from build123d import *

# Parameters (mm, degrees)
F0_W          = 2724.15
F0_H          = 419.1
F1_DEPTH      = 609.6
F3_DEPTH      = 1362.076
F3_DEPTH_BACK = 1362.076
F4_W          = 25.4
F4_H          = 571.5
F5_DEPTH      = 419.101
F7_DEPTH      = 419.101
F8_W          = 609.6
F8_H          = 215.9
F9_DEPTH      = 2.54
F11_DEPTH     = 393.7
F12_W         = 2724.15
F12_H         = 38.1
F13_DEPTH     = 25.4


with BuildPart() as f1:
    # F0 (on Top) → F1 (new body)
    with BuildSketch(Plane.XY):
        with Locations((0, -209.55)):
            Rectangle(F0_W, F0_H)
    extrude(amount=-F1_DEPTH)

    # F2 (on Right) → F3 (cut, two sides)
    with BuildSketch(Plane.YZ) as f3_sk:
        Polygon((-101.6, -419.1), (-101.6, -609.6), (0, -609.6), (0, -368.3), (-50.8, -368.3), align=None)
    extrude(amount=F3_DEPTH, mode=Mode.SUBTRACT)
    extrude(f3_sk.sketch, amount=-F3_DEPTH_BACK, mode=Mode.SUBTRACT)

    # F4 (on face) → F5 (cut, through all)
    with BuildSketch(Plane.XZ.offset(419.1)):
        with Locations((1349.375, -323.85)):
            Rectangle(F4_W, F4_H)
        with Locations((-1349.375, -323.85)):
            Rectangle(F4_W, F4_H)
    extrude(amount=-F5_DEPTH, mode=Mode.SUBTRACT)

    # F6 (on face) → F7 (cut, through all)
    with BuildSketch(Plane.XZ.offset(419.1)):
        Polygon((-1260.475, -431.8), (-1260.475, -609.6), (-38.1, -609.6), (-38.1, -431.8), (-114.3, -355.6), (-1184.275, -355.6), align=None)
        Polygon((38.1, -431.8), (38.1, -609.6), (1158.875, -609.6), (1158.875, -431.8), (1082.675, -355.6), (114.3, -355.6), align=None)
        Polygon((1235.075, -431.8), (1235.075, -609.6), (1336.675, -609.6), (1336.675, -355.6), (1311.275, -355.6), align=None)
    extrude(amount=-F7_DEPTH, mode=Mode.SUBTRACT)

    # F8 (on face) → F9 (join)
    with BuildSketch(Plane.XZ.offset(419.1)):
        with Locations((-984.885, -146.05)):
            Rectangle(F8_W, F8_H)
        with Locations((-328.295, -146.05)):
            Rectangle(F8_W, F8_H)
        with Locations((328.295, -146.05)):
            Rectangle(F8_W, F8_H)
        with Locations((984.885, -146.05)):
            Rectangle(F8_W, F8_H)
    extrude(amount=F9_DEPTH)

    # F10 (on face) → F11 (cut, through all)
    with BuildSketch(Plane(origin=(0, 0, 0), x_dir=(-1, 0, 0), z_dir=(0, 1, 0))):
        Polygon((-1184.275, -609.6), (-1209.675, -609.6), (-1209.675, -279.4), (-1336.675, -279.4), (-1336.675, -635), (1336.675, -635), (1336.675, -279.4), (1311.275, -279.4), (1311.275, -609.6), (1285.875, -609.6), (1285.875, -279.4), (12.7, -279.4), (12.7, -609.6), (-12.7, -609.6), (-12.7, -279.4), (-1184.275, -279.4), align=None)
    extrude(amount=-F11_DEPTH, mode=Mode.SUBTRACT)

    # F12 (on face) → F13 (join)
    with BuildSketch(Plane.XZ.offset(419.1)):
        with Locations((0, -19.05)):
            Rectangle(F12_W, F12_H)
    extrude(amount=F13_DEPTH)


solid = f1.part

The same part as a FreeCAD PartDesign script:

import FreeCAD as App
import Part
import Sketcher
Q = App.Units.Quantity

doc = App.newDocument("Part")
body = doc.addObject("PartDesign::Body", "Body")

# Sketch on XY plane
sketch1 = body.newObject("Sketcher::SketchObject", "Sketch")
sketch1.AttachmentSupport = (doc.getObject("XY_Plane"), [""])
sketch1.MapMode = "FlatFace"
sketch1.addGeometry(Part.LineSegment(App.Vector(-1362, 0, 0), App.Vector(-1362, -419, 0)), False)
sketch1.addGeometry(Part.LineSegment(App.Vector(-1362, -419, 0), App.Vector(1362, -419, 0)), False)
sketch1.addGeometry(Part.LineSegment(App.Vector(1362, -419, 0), App.Vector(1362, 0, 0)), False)
sketch1.addGeometry(Part.LineSegment(App.Vector(1362, 0, 0), App.Vector(-1362, 0, 0)), False)
sketch1.addConstraint(Sketcher.Constraint("Coincident", 0, 2, 1, 1))
sketch1.addConstraint(Sketcher.Constraint("Coincident", 1, 2, 2, 1))
sketch1.addConstraint(Sketcher.Constraint("Coincident", 2, 2, 3, 1))
sketch1.addConstraint(Sketcher.Constraint("Coincident", 3, 2, 0, 1))
sketch1.addConstraint(Sketcher.Constraint("Vertical", 0))
sketch1.addConstraint(Sketcher.Constraint("Horizontal", 1))
sketch1.addConstraint(Sketcher.Constraint("Vertical", 2))
sketch1.addConstraint(Sketcher.Constraint("Horizontal", 3))
sketch1.addConstraint(Sketcher.Constraint("Symmetric", 2, 2, 3, 2, -1, 1))
sketch1.addConstraint(Sketcher.Constraint("DistanceY", 0, 2, 0, 1, Q("16.5 in")))
sketch1.addConstraint(Sketcher.Constraint("DistanceX", 1, 1, 1, 2, Q("107.25 in")))
pad1 = body.newObject("PartDesign::Pad", "Pad")
pad1.Profile = sketch1
pad1.Length = Q("24 in")
pad1.Reversed = True

# Sketch on YZ plane
sketch2 = body.newObject("Sketcher::SketchObject", "Sketch001")
sketch2.AttachmentSupport = (doc.getObject("YZ_Plane"), [""])
sketch2.MapMode = "FlatFace"
sketch2.addGeometry(Part.LineSegment(App.Vector(-102, -419, 0), App.Vector(-102, -610, 0)), False)
sketch2.addGeometry(Part.LineSegment(App.Vector(-102, -610, 0), App.Vector(0, -610, 0)), False)
sketch2.addGeometry(Part.LineSegment(App.Vector(0, -610, 0), App.Vector(0, -368, 0)), False)
sketch2.addGeometry(Part.LineSegment(App.Vector(0, -368, 0), App.Vector(-51, -368, 0)), False)
sketch2.addGeometry(Part.LineSegment(App.Vector(-51, -368, 0), App.Vector(-102, -419, 0)), False)
sketch2.addConstraint(Sketcher.Constraint("Coincident", 0, 2, 1, 1))
sketch2.addConstraint(Sketcher.Constraint("Coincident", 1, 2, 2, 1))
sketch2.addConstraint(Sketcher.Constraint("Coincident", 2, 2, 3, 1))
sketch2.addConstraint(Sketcher.Constraint("Coincident", 3, 2, 4, 1))
sketch2.addConstraint(Sketcher.Constraint("Coincident", 4, 2, 0, 1))
sketch2.addConstraint(Sketcher.Constraint("Vertical", 0))
sketch2.addConstraint(Sketcher.Constraint("Horizontal", 1))
sketch2.addConstraint(Sketcher.Constraint("Vertical", 2))
sketch2.addConstraint(Sketcher.Constraint("Horizontal", 3))
sketch2.addConstraint(Sketcher.Constraint("PointOnObject", 1, 2, -2))
sketch2.addConstraint(Sketcher.Constraint("DistanceX", 1, 1, 1, 2, Q("4 in")))
sketch2.addConstraint(Sketcher.Constraint("DistanceX", 3, 2, 3, 1, Q("2 in")))
sketch2.addConstraint(Sketcher.Constraint("DistanceY", 0, 2, 0, 1, Q("7.5 in")))
sketch2.addConstraint(Sketcher.Constraint("DistanceY", 2, 1, 2, 2, Q("9.5 in")))
sketch2.addConstraint(Sketcher.Constraint("DistanceY", 0, 2, -1, 1, Q("24 in")))
pocket1 = body.newObject("PartDesign::Pocket", "Pocket")
pocket1.Profile = sketch2
pocket1.Type = "ThroughAll"
pocket1.Midplane = True

# Sketch on XZ plane
sketch3 = body.newObject("Sketcher::SketchObject", "Sketch002")
sketch3.AttachmentSupport = (doc.getObject("XZ_Plane"), [""])
sketch3.MapMode = "FlatFace"
sketch3.AttachmentOffset = App.Placement(App.Vector(0, 0, 16.5 * 25.4), App.Rotation())
sketch3.addGeometry(Part.LineSegment(App.Vector(1337, -38, 0), App.Vector(1337, -610, 0)), False)
sketch3.addGeometry(Part.LineSegment(App.Vector(1337, -610, 0), App.Vector(1362, -610, 0)), False)
sketch3.addGeometry(Part.LineSegment(App.Vector(1362, -610, 0), App.Vector(1362, -38, 0)), False)
sketch3.addGeometry(Part.LineSegment(App.Vector(1362, -38, 0), App.Vector(1337, -38, 0)), False)
sketch3.addGeometry(Part.LineSegment(App.Vector(-1362, -38, 0), App.Vector(-1362, -610, 0)), False)
sketch3.addGeometry(Part.LineSegment(App.Vector(-1362, -610, 0), App.Vector(-1337, -610, 0)), False)
sketch3.addGeometry(Part.LineSegment(App.Vector(-1337, -610, 0), App.Vector(-1337, -38, 0)), False)
sketch3.addGeometry(Part.LineSegment(App.Vector(-1337, -38, 0), App.Vector(-1362, -38, 0)), False)
sketch3.addConstraint(Sketcher.Constraint("Coincident", 0, 2, 1, 1))
sketch3.addConstraint(Sketcher.Constraint("Coincident", 1, 2, 2, 1))
sketch3.addConstraint(Sketcher.Constraint("Coincident", 2, 2, 3, 1))
sketch3.addConstraint(Sketcher.Constraint("Coincident", 3, 2, 0, 1))
sketch3.addConstraint(Sketcher.Constraint("Coincident", 4, 2, 5, 1))
sketch3.addConstraint(Sketcher.Constraint("Coincident", 5, 2, 6, 1))
sketch3.addConstraint(Sketcher.Constraint("Coincident", 6, 2, 7, 1))
sketch3.addConstraint(Sketcher.Constraint("Coincident", 7, 2, 4, 1))
sketch3.addConstraint(Sketcher.Constraint("Vertical", 0))
sketch3.addConstraint(Sketcher.Constraint("Horizontal", 1))
sketch3.addConstraint(Sketcher.Constraint("Vertical", 2))
sketch3.addConstraint(Sketcher.Constraint("Horizontal", 3))
sketch3.addConstraint(Sketcher.Constraint("Vertical", 4))
sketch3.addConstraint(Sketcher.Constraint("Horizontal", 5))
sketch3.addConstraint(Sketcher.Constraint("Vertical", 6))
sketch3.addConstraint(Sketcher.Constraint("Horizontal", 7))
sketch3.addConstraint(Sketcher.Constraint("Symmetric", 1, 2, 4, 2, -2))
sketch3.addConstraint(Sketcher.Constraint("Symmetric", 3, 2, 6, 2, -2))
sketch3.addConstraint(Sketcher.Constraint("DistanceX", 1, 1, 1, 2, Q("1 in")))
sketch3.addConstraint(Sketcher.Constraint("DistanceY", 0, 2, 0, 1, Q("22.5 in")))
sketch3.addConstraint(Sketcher.Constraint("DistanceY", 0, 2, -1, 1, Q("24 in")))
sketch3.addConstraint(Sketcher.Constraint("DistanceX", 4, 2, 0, 2, Q("106.25 in")))
pocket2 = body.newObject("PartDesign::Pocket", "Pocket001")
pocket2.Profile = sketch3
pocket2.Type = "ThroughAll"

# Sketch on XZ plane
sketch4 = body.newObject("Sketcher::SketchObject", "Sketch003")
sketch4.AttachmentSupport = (doc.getObject("XZ_Plane"), [""])
sketch4.MapMode = "FlatFace"
sketch4.AttachmentOffset = App.Placement(App.Vector(0, 0, 16.5 * 25.4), App.Rotation())
sketch4.addGeometry(Part.LineSegment(App.Vector(-1260, -432, 0), App.Vector(-1260, -610, 0)), False)
sketch4.addGeometry(Part.LineSegment(App.Vector(-1260, -610, 0), App.Vector(-38, -610, 0)), False)
sketch4.addGeometry(Part.LineSegment(App.Vector(-38, -610, 0), App.Vector(-38, -432, 0)), False)
sketch4.addGeometry(Part.LineSegment(App.Vector(-38, -432, 0), App.Vector(-114, -356, 0)), False)
sketch4.addGeometry(Part.LineSegment(App.Vector(-114, -356, 0), App.Vector(-1184, -356, 0)), False)
sketch4.addGeometry(Part.LineSegment(App.Vector(-1184, -356, 0), App.Vector(-1260, -432, 0)), False)
sketch4.addGeometry(Part.LineSegment(App.Vector(38, -432, 0), App.Vector(38, -610, 0)), False)
sketch4.addGeometry(Part.LineSegment(App.Vector(38, -610, 0), App.Vector(1159, -610, 0)), False)
sketch4.addGeometry(Part.LineSegment(App.Vector(1159, -610, 0), App.Vector(1159, -432, 0)), False)
sketch4.addGeometry(Part.LineSegment(App.Vector(1159, -432, 0), App.Vector(1083, -356, 0)), False)
sketch4.addGeometry(Part.LineSegment(App.Vector(1083, -356, 0), App.Vector(114, -356, 0)), False)
sketch4.addGeometry(Part.LineSegment(App.Vector(114, -356, 0), App.Vector(38, -432, 0)), False)
sketch4.addGeometry(Part.LineSegment(App.Vector(1235, -432, 0), App.Vector(1235, -610, 0)), False)
sketch4.addGeometry(Part.LineSegment(App.Vector(1235, -610, 0), App.Vector(1337, -610, 0)), False)
sketch4.addGeometry(Part.LineSegment(App.Vector(1337, -610, 0), App.Vector(1337, -356, 0)), False)
sketch4.addGeometry(Part.LineSegment(App.Vector(1337, -356, 0), App.Vector(1311, -356, 0)), False)
sketch4.addGeometry(Part.LineSegment(App.Vector(1311, -356, 0), App.Vector(1235, -432, 0)), False)
sketch4.addConstraint(Sketcher.Constraint("Coincident", 0, 2, 1, 1))
sketch4.addConstraint(Sketcher.Constraint("Coincident", 1, 2, 2, 1))
sketch4.addConstraint(Sketcher.Constraint("Coincident", 2, 2, 3, 1))
sketch4.addConstraint(Sketcher.Constraint("Coincident", 3, 2, 4, 1))
sketch4.addConstraint(Sketcher.Constraint("Coincident", 4, 2, 5, 1))
sketch4.addConstraint(Sketcher.Constraint("Coincident", 5, 2, 0, 1))
sketch4.addConstraint(Sketcher.Constraint("Coincident", 6, 2, 7, 1))
sketch4.addConstraint(Sketcher.Constraint("Coincident", 7, 2, 8, 1))
sketch4.addConstraint(Sketcher.Constraint("Coincident", 8, 2, 9, 1))
sketch4.addConstraint(Sketcher.Constraint("Coincident", 9, 2, 10, 1))
sketch4.addConstraint(Sketcher.Constraint("Coincident", 10, 2, 11, 1))
sketch4.addConstraint(Sketcher.Constraint("Coincident", 11, 2, 6, 1))
sketch4.addConstraint(Sketcher.Constraint("Coincident", 12, 2, 13, 1))
sketch4.addConstraint(Sketcher.Constraint("Coincident", 13, 2, 14, 1))
sketch4.addConstraint(Sketcher.Constraint("Coincident", 14, 2, 15, 1))
sketch4.addConstraint(Sketcher.Constraint("Coincident", 15, 2, 16, 1))
sketch4.addConstraint(Sketcher.Constraint("Coincident", 16, 2, 12, 1))
sketch4.addConstraint(Sketcher.Constraint("Vertical", 0))
sketch4.addConstraint(Sketcher.Constraint("Horizontal", 1))
sketch4.addConstraint(Sketcher.Constraint("Vertical", 2))
sketch4.addConstraint(Sketcher.Constraint("Horizontal", 4))
sketch4.addConstraint(Sketcher.Constraint("Vertical", 6))
sketch4.addConstraint(Sketcher.Constraint("Horizontal", 7))
sketch4.addConstraint(Sketcher.Constraint("Vertical", 8))
sketch4.addConstraint(Sketcher.Constraint("Horizontal", 10))
sketch4.addConstraint(Sketcher.Constraint("Vertical", 12))
sketch4.addConstraint(Sketcher.Constraint("Horizontal", 13))
sketch4.addConstraint(Sketcher.Constraint("Vertical", 14))
sketch4.addConstraint(Sketcher.Constraint("Horizontal", 15))
sketch4.addConstraint(Sketcher.Constraint("Symmetric", 1, 2, 6, 2, -2))
sketch4.addConstraint(Sketcher.Constraint("Symmetric", 3, 2, 10, 2, -2))
sketch4.addConstraint(Sketcher.Constraint("Perpendicular", 3, 5))
sketch4.addConstraint(Sketcher.Constraint("Perpendicular", 5, 9))
sketch4.addConstraint(Sketcher.Constraint("Perpendicular", 9, 11))
sketch4.addConstraint(Sketcher.Constraint("Parallel", 11, 16))
sketch4.addConstraint(Sketcher.Constraint("Horizontal", 2, 2, 5, 2))
sketch4.addConstraint(Sketcher.Constraint("Horizontal", 5, 2, 8, 2))
sketch4.addConstraint(Sketcher.Constraint("Horizontal", 8, 2, 11, 2))
sketch4.addConstraint(Sketcher.Constraint("Horizontal", 7, 2, 12, 2))
sketch4.addConstraint(Sketcher.Constraint("Horizontal", 10, 2, 14, 2))
sketch4.addConstraint(Sketcher.Constraint("Horizontal", 11, 2, 16, 2))
sketch4.addConstraint(Sketcher.Constraint("DistanceX", 13, 1, 13, 2, Q("4 in")))
sketch4.addConstraint(Sketcher.Constraint("DistanceX", 15, 2, 15, 1, Q("1 in")))
sketch4.addConstraint(Sketcher.Constraint("DistanceY", 0, 2, 0, 1, Q("7 in")))
sketch4.addConstraint(Sketcher.Constraint("DistanceY", 0, 2, -1, 1, Q("24 in")))
sketch4.addConstraint(Sketcher.Constraint("DistanceX", 1, 2, 6, 2, Q("3 in")))
sketch4.addConstraint(Sketcher.Constraint("DistanceX", 7, 2, 12, 2, Q("3 in")))
sketch4.addConstraint(Sketcher.Constraint("DistanceX", 1, 1, 1, 2, Q("48.125 in")))
sketch4.addConstraint(Sketcher.Constraint("DistanceX", 7, 1, 7, 2, Q("44.125 in")))
pocket3 = body.newObject("PartDesign::Pocket", "Pocket002")
pocket3.Profile = sketch4
pocket3.Type = "ThroughAll"

# Sketch on XZ plane
sketch5 = body.newObject("Sketcher::SketchObject", "Sketch004")
sketch5.AttachmentSupport = (doc.getObject("XZ_Plane"), [""])
sketch5.MapMode = "FlatFace"
sketch5.AttachmentOffset = App.Placement(App.Vector(0, 0, 16.5 * 25.4), App.Rotation())
sketch5.addGeometry(Part.LineSegment(App.Vector(-1290, -38, 0), App.Vector(-1290, -254, 0)), False)
sketch5.addGeometry(Part.LineSegment(App.Vector(-1290, -254, 0), App.Vector(-680, -254, 0)), False)
sketch5.addGeometry(Part.LineSegment(App.Vector(-680, -254, 0), App.Vector(-680, -38, 0)), False)
sketch5.addGeometry(Part.LineSegment(App.Vector(-680, -38, 0), App.Vector(-1290, -38, 0)), False)
sketch5.addGeometry(Part.LineSegment(App.Vector(-633, -38, 0), App.Vector(-633, -254, 0)), False)
sketch5.addGeometry(Part.LineSegment(App.Vector(-633, -254, 0), App.Vector(-23, -254, 0)), False)
sketch5.addGeometry(Part.LineSegment(App.Vector(-23, -254, 0), App.Vector(-23, -38, 0)), False)
sketch5.addGeometry(Part.LineSegment(App.Vector(-23, -38, 0), App.Vector(-633, -38, 0)), False)
sketch5.addGeometry(Part.LineSegment(App.Vector(23, -38, 0), App.Vector(23, -254, 0)), False)
sketch5.addGeometry(Part.LineSegment(App.Vector(23, -254, 0), App.Vector(633, -254, 0)), False)
sketch5.addGeometry(Part.LineSegment(App.Vector(633, -254, 0), App.Vector(633, -38, 0)), False)
sketch5.addGeometry(Part.LineSegment(App.Vector(633, -38, 0), App.Vector(23, -38, 0)), False)
sketch5.addGeometry(Part.LineSegment(App.Vector(680, -38, 0), App.Vector(680, -254, 0)), False)
sketch5.addGeometry(Part.LineSegment(App.Vector(680, -254, 0), App.Vector(1290, -254, 0)), False)
sketch5.addGeometry(Part.LineSegment(App.Vector(1290, -254, 0), App.Vector(1290, -38, 0)), False)
sketch5.addGeometry(Part.LineSegment(App.Vector(1290, -38, 0), App.Vector(680, -38, 0)), False)
sketch5.addConstraint(Sketcher.Constraint("Coincident", 0, 2, 1, 1))
sketch5.addConstraint(Sketcher.Constraint("Coincident", 1, 2, 2, 1))
sketch5.addConstraint(Sketcher.Constraint("Coincident", 2, 2, 3, 1))
sketch5.addConstraint(Sketcher.Constraint("Coincident", 3, 2, 0, 1))
sketch5.addConstraint(Sketcher.Constraint("Coincident", 4, 2, 5, 1))
sketch5.addConstraint(Sketcher.Constraint("Coincident", 5, 2, 6, 1))
sketch5.addConstraint(Sketcher.Constraint("Coincident", 6, 2, 7, 1))
sketch5.addConstraint(Sketcher.Constraint("Coincident", 7, 2, 4, 1))
sketch5.addConstraint(Sketcher.Constraint("Coincident", 8, 2, 9, 1))
sketch5.addConstraint(Sketcher.Constraint("Coincident", 9, 2, 10, 1))
sketch5.addConstraint(Sketcher.Constraint("Coincident", 10, 2, 11, 1))
sketch5.addConstraint(Sketcher.Constraint("Coincident", 11, 2, 8, 1))
sketch5.addConstraint(Sketcher.Constraint("Coincident", 12, 2, 13, 1))
sketch5.addConstraint(Sketcher.Constraint("Coincident", 13, 2, 14, 1))
sketch5.addConstraint(Sketcher.Constraint("Coincident", 14, 2, 15, 1))
sketch5.addConstraint(Sketcher.Constraint("Coincident", 15, 2, 12, 1))
sketch5.addConstraint(Sketcher.Constraint("Vertical", 0))
sketch5.addConstraint(Sketcher.Constraint("Horizontal", 1))
sketch5.addConstraint(Sketcher.Constraint("Vertical", 2))
sketch5.addConstraint(Sketcher.Constraint("Horizontal", 3))
sketch5.addConstraint(Sketcher.Constraint("Vertical", 4))
sketch5.addConstraint(Sketcher.Constraint("Horizontal", 5))
sketch5.addConstraint(Sketcher.Constraint("Vertical", 6))
sketch5.addConstraint(Sketcher.Constraint("Horizontal", 7))
sketch5.addConstraint(Sketcher.Constraint("Vertical", 8))
sketch5.addConstraint(Sketcher.Constraint("Horizontal", 9))
sketch5.addConstraint(Sketcher.Constraint("Vertical", 10))
sketch5.addConstraint(Sketcher.Constraint("Horizontal", 11))
sketch5.addConstraint(Sketcher.Constraint("Vertical", 12))
sketch5.addConstraint(Sketcher.Constraint("Horizontal", 13))
sketch5.addConstraint(Sketcher.Constraint("Vertical", 14))
sketch5.addConstraint(Sketcher.Constraint("Horizontal", 15))
sketch5.addConstraint(Sketcher.Constraint("Symmetric", 5, 2, 8, 2, -2))
sketch5.addConstraint(Sketcher.Constraint("Symmetric", 7, 2, 10, 2, -2))
sketch5.addConstraint(Sketcher.Constraint("Symmetric", 1, 2, 12, 2, -2))
sketch5.addConstraint(Sketcher.Constraint("Symmetric", 3, 2, 14, 2, -2))
sketch5.addConstraint(Sketcher.Constraint("Horizontal", 1, 2, 4, 2))
sketch5.addConstraint(Sketcher.Constraint("Horizontal", 3, 2, 6, 2))
sketch5.addConstraint(Sketcher.Constraint("Equal", 3, 5))
sketch5.addConstraint(Sketcher.Constraint("DistanceX", 1, 1, 1, 2, Q("24 in")))
sketch5.addConstraint(Sketcher.Constraint("DistanceY", 0, 2, 0, 1, Q("8.5 in")))
sketch5.addConstraint(Sketcher.Constraint("DistanceY", 0, 2, -1, 1, Q("10 in")))
sketch5.addConstraint(Sketcher.Constraint("DistanceX", 1, 2, 8, 2, Q("27.7 in")))
sketch5.addConstraint(Sketcher.Constraint("DistanceX", 1, 2, 4, 2, Q("1.85 in")))
pad2 = body.newObject("PartDesign::Pad", "Pad001")
pad2.Profile = sketch5
pad2.Length = Q("0.1 in")

# Sketch on XZ plane
sketch6 = body.newObject("Sketcher::SketchObject", "Sketch005")
sketch6.AttachmentSupport = (doc.getObject("XZ_Plane"), [""])
sketch6.MapMode = "FlatFace"
sketch6.addGeometry(Part.LineSegment(App.Vector(1184, -610, 0), App.Vector(1210, -610, 0)), False)
sketch6.addGeometry(Part.LineSegment(App.Vector(1210, -610, 0), App.Vector(1210, -279, 0)), False)
sketch6.addGeometry(Part.LineSegment(App.Vector(1210, -279, 0), App.Vector(1337, -279, 0)), False)
sketch6.addGeometry(Part.LineSegment(App.Vector(1337, -279, 0), App.Vector(1337, -635, 0)), False)
sketch6.addGeometry(Part.LineSegment(App.Vector(1337, -635, 0), App.Vector(-1337, -635, 0)), False)
sketch6.addGeometry(Part.LineSegment(App.Vector(-1337, -635, 0), App.Vector(-1337, -279, 0)), False)
sketch6.addGeometry(Part.LineSegment(App.Vector(-1337, -279, 0), App.Vector(-1311, -279, 0)), False)
sketch6.addGeometry(Part.LineSegment(App.Vector(-1311, -279, 0), App.Vector(-1311, -610, 0)), False)
sketch6.addGeometry(Part.LineSegment(App.Vector(-1311, -610, 0), App.Vector(-1286, -610, 0)), False)
sketch6.addGeometry(Part.LineSegment(App.Vector(-1286, -610, 0), App.Vector(-1286, -279, 0)), False)
sketch6.addGeometry(Part.LineSegment(App.Vector(-1286, -279, 0), App.Vector(-13, -279, 0)), False)
sketch6.addGeometry(Part.LineSegment(App.Vector(-13, -279, 0), App.Vector(-13, -610, 0)), False)
sketch6.addGeometry(Part.LineSegment(App.Vector(-13, -610, 0), App.Vector(13, -610, 0)), False)
sketch6.addGeometry(Part.LineSegment(App.Vector(13, -610, 0), App.Vector(13, -279, 0)), False)
sketch6.addGeometry(Part.LineSegment(App.Vector(13, -279, 0), App.Vector(1184, -279, 0)), False)
sketch6.addGeometry(Part.LineSegment(App.Vector(1184, -279, 0), App.Vector(1184, -610, 0)), False)
sketch6.addConstraint(Sketcher.Constraint("Coincident", 0, 2, 1, 1))
sketch6.addConstraint(Sketcher.Constraint("Coincident", 1, 2, 2, 1))
sketch6.addConstraint(Sketcher.Constraint("Coincident", 2, 2, 3, 1))
sketch6.addConstraint(Sketcher.Constraint("Coincident", 3, 2, 4, 1))
sketch6.addConstraint(Sketcher.Constraint("Coincident", 4, 2, 5, 1))
sketch6.addConstraint(Sketcher.Constraint("Coincident", 5, 2, 6, 1))
sketch6.addConstraint(Sketcher.Constraint("Coincident", 6, 2, 7, 1))
sketch6.addConstraint(Sketcher.Constraint("Coincident", 7, 2, 8, 1))
sketch6.addConstraint(Sketcher.Constraint("Coincident", 8, 2, 9, 1))
sketch6.addConstraint(Sketcher.Constraint("Coincident", 9, 2, 10, 1))
sketch6.addConstraint(Sketcher.Constraint("Coincident", 10, 2, 11, 1))
sketch6.addConstraint(Sketcher.Constraint("Coincident", 11, 2, 12, 1))
sketch6.addConstraint(Sketcher.Constraint("Coincident", 12, 2, 13, 1))
sketch6.addConstraint(Sketcher.Constraint("Coincident", 13, 2, 14, 1))
sketch6.addConstraint(Sketcher.Constraint("Coincident", 14, 2, 15, 1))
sketch6.addConstraint(Sketcher.Constraint("Coincident", 15, 2, 0, 1))
sketch6.addConstraint(Sketcher.Constraint("Horizontal", 0))
sketch6.addConstraint(Sketcher.Constraint("Vertical", 1))
sketch6.addConstraint(Sketcher.Constraint("Horizontal", 2))
sketch6.addConstraint(Sketcher.Constraint("Vertical", 3))
sketch6.addConstraint(Sketcher.Constraint("Horizontal", 4))
sketch6.addConstraint(Sketcher.Constraint("Vertical", 5))
sketch6.addConstraint(Sketcher.Constraint("Horizontal", 6))
sketch6.addConstraint(Sketcher.Constraint("Vertical", 7))
sketch6.addConstraint(Sketcher.Constraint("Horizontal", 8))
sketch6.addConstraint(Sketcher.Constraint("Vertical", 9))
sketch6.addConstraint(Sketcher.Constraint("Horizontal", 10))
sketch6.addConstraint(Sketcher.Constraint("Vertical", 11))
sketch6.addConstraint(Sketcher.Constraint("Horizontal", 12))
sketch6.addConstraint(Sketcher.Constraint("Vertical", 13))
sketch6.addConstraint(Sketcher.Constraint("Horizontal", 14))
sketch6.addConstraint(Sketcher.Constraint("Vertical", 15))
sketch6.addConstraint(Sketcher.Constraint("Symmetric", 2, 2, 5, 2, -2))
sketch6.addConstraint(Sketcher.Constraint("Symmetric", 10, 2, 13, 2, -2))
sketch6.addConstraint(Sketcher.Constraint("Horizontal", 0, 2, 7, 2))
sketch6.addConstraint(Sketcher.Constraint("Horizontal", 6, 2, 9, 2))
sketch6.addConstraint(Sketcher.Constraint("Horizontal", 8, 2, 11, 2))
sketch6.addConstraint(Sketcher.Constraint("Equal", 0, 6))
sketch6.addConstraint(Sketcher.Constraint("Equal", 6, 8))
sketch6.addConstraint(Sketcher.Constraint("Equal", 8, 12))
sketch6.addConstraint(Sketcher.Constraint("DistanceX", 0, 1, 0, 2, Q("1 in")))
sketch6.addConstraint(Sketcher.Constraint("DistanceX", 2, 1, 2, 2, Q("5 in")))
sketch6.addConstraint(Sketcher.Constraint("DistanceY", 1, 1, 1, 2, Q("13 in")))
sketch6.addConstraint(Sketcher.Constraint("DistanceY", 3, 2, 3, 1, Q("14 in")))
sketch6.addConstraint(Sketcher.Constraint("DistanceY", 0, 2, -1, 1, Q("24 in")))
sketch6.addConstraint(Sketcher.Constraint("DistanceX", 4, 2, 4, 1, Q("105.25 in")))
pocket4 = body.newObject("PartDesign::Pocket", "Pocket003")
pocket4.Profile = sketch6
pocket4.Length = Q("15.5 in")
pocket4.Reversed = True

# Sketch on XZ plane
sketch7 = body.newObject("Sketcher::SketchObject", "Sketch006")
sketch7.AttachmentSupport = (doc.getObject("XZ_Plane"), [""])
sketch7.MapMode = "FlatFace"
sketch7.AttachmentOffset = App.Placement(App.Vector(0, 0, 16.5 * 25.4), App.Rotation())
sketch7.addGeometry(Part.LineSegment(App.Vector(-1362, 0, 0), App.Vector(-1362, -38, 0)), False)
sketch7.addGeometry(Part.LineSegment(App.Vector(-1362, -38, 0), App.Vector(1362, -38, 0)), False)
sketch7.addGeometry(Part.LineSegment(App.Vector(1362, -38, 0), App.Vector(1362, 0, 0)), False)
sketch7.addGeometry(Part.LineSegment(App.Vector(1362, 0, 0), App.Vector(-1362, 0, 0)), False)
sketch7.addConstraint(Sketcher.Constraint("Coincident", 0, 2, 1, 1))
sketch7.addConstraint(Sketcher.Constraint("Coincident", 1, 2, 2, 1))
sketch7.addConstraint(Sketcher.Constraint("Coincident", 2, 2, 3, 1))
sketch7.addConstraint(Sketcher.Constraint("Coincident", 3, 2, 0, 1))
sketch7.addConstraint(Sketcher.Constraint("Vertical", 0))
sketch7.addConstraint(Sketcher.Constraint("Horizontal", 1))
sketch7.addConstraint(Sketcher.Constraint("Vertical", 2))
sketch7.addConstraint(Sketcher.Constraint("Horizontal", 3))
sketch7.addConstraint(Sketcher.Constraint("Symmetric", 2, 2, 3, 2, -1, 1))
sketch7.addConstraint(Sketcher.Constraint("DistanceY", 0, 2, 0, 1, Q("1.5 in")))
sketch7.addConstraint(Sketcher.Constraint("DistanceX", 1, 1, 1, 2, Q("107.25 in")))
pad3 = body.newObject("PartDesign::Pad", "Pad002")
pad3.Profile = sketch7
pad3.Length = Q("1 in")

doc.recompute()
